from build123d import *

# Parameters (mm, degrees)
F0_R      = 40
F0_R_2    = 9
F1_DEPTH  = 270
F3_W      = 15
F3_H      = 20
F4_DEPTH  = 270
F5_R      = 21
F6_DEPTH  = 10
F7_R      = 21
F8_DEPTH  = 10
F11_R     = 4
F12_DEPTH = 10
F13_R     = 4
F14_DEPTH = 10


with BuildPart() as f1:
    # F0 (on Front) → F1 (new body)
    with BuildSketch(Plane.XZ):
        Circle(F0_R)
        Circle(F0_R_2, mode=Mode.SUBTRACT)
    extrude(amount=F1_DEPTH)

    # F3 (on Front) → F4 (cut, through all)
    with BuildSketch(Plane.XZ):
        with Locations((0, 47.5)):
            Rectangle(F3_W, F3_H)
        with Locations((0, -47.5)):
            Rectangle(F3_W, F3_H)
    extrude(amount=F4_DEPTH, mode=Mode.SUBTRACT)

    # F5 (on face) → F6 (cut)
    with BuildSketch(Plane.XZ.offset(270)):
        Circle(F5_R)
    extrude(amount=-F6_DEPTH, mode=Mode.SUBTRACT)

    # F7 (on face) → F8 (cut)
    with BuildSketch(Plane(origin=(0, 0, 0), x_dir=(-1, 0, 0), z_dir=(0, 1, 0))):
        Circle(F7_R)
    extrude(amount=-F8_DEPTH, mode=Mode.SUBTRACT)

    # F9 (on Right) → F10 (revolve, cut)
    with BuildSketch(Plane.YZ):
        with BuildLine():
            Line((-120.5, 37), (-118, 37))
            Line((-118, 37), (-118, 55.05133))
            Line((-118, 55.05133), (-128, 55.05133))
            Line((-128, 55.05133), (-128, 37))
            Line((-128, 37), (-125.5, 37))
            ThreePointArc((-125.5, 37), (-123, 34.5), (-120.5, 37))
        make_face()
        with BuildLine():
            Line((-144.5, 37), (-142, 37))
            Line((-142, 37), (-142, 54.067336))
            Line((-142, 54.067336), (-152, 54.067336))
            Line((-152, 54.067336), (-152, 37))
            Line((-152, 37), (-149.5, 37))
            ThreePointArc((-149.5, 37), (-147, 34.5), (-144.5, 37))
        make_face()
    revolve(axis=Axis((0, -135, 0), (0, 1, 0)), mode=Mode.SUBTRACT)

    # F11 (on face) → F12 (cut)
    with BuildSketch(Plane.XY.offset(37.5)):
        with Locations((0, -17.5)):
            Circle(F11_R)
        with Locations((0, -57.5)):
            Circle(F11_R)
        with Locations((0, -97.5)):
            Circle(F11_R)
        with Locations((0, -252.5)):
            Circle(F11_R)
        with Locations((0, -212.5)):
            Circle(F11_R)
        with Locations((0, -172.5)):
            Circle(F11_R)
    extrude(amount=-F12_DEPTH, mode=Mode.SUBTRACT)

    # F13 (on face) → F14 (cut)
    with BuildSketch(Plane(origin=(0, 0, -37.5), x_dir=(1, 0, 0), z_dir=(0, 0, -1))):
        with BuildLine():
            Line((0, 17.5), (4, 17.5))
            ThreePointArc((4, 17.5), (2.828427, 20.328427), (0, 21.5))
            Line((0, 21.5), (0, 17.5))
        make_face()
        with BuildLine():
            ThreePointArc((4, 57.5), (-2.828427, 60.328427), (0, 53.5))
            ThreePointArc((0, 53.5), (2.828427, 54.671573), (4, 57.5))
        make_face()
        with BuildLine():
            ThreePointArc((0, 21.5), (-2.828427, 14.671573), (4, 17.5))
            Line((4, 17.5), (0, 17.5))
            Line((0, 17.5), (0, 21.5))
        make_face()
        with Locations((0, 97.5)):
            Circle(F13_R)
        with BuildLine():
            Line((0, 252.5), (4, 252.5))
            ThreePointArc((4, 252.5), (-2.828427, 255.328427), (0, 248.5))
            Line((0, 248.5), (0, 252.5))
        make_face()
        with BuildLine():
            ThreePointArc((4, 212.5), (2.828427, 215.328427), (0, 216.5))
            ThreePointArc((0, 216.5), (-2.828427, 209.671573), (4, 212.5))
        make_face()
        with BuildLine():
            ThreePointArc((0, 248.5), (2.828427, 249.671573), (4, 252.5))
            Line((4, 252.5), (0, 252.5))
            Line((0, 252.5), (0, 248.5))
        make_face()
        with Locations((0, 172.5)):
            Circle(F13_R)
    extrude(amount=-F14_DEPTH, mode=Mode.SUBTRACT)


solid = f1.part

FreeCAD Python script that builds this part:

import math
import FreeCAD as App
import Part
import Sketcher

V = App.Vector


def add_polygon(sketch, points):
    """Adds a closed chain of lines whose ends are joined by coincident constraints."""
    first, n = sketch.GeometryCount, len(points)
    for a, b in zip(points, points[1:] + points[:1]):
        sketch.addGeometry(Part.LineSegment(App.Vector(*a, 0), App.Vector(*b, 0)), False)
    for i in range(n):
        sketch.addConstraint(Sketcher.Constraint("Coincident", first + i, 2, first + (i + 1) % n, 1))

doc = App.newDocument("Part")
body = doc.addObject("PartDesign::Body", "Body")

sketch1 = body.newObject("Sketcher::SketchObject", "Sketch")
sketch1.AttachmentSupport = (doc.getObject("XZ_Plane"), [""])
sketch1.MapMode = "FlatFace"
sketch1.addGeometry([
    Part.Circle(V(0, 0, 0), V(0, 0, 1), 40),
    Part.Circle(V(0, 0, 0), V(0, 0, 1), 9),
], False)
sketch1.addConstraint([
    Sketcher.Constraint("Coincident", 0, 3, -1, 1),
    Sketcher.Constraint("Coincident", 1, 3, -1, 1),
    Sketcher.Constraint("Diameter", 0, 80.0),
    Sketcher.Constraint("Diameter", 1, 18.0),
])
pad1 = body.newObject("PartDesign::Pad", "Pad")
pad1.Profile = sketch1
pad1.Length = 270

sketch2 = body.newObject("Sketcher::SketchObject", "Sketch001")
sketch2.AttachmentSupport = (doc.getObject("XZ_Plane"), [""])
sketch2.MapMode = "FlatFace"
add_polygon(sketch2, [(-8, 58), (-8, 38), (8, 38), (8, 58)])
add_polygon(sketch2, [(-8, -38), (-8, -58), (8, -58), (8, -38)])
sketch2.addConstraint([
    Sketcher.Constraint("Vertical", 0),
    Sketcher.Constraint("Horizontal", 1),
    Sketcher.Constraint("Vertical", 2),
    Sketcher.Constraint("Horizontal", 3),
    Sketcher.Constraint("Vertical", 4),
    Sketcher.Constraint("Horizontal", 5),
    Sketcher.Constraint("Vertical", 6),
    Sketcher.Constraint("Horizontal", 7),
    Sketcher.Constraint("Symmetric", 2, 2, 4, 2, -1, 1),
    Sketcher.Constraint("Symmetric", 0, 2, 6, 2, -1, 1),
    Sketcher.Constraint("Vertical", 3, 2, 4, 2),
    Sketcher.Constraint("DistanceX", 1, 1, 1, 2, 15.0),
    Sketcher.Constraint("DistanceY", 0, 2, 0, 1, 20.0),
    Sketcher.Constraint("DistanceY", 4, 2, 0, 2, 95.0),
])
pocket1 = body.newObject("PartDesign::Pocket", "Pocket")
pocket1.Profile = sketch2
pocket1.Type = "ThroughAll"
pocket1.Reversed = True

sketch3 = body.newObject("Sketcher::SketchObject", "Sketch002")
sketch3.AttachmentSupport = (doc.getObject("XZ_Plane"), [""])
sketch3.MapMode = "FlatFace"
sketch3.AttachmentOffset = App.Placement(V(0, 0, 270), App.Rotation())
sketch3.addGeometry(Part.Circle(V(0, 0, 0), V(0, 0, 1), 21), False)
sketch3.addConstraint([
    Sketcher.Constraint("Coincident", 0, 3, -1, 1),
    Sketcher.Constraint("Diameter", 0, 42.0),
])
pocket2 = body.newObject("PartDesign::Pocket", "Pocket001")
pocket2.Profile = sketch3
pocket2.Length = 10

sketch4 = body.newObject("Sketcher::SketchObject", "Sketch003")
sketch4.AttachmentSupport = (doc.getObject("XZ_Plane"), [""])
sketch4.MapMode = "FlatFace"
sketch4.addGeometry(Part.Circle(V(0, 0, 0), V(0, 0, 1), 21), False)
sketch4.addConstraint([
    Sketcher.Constraint("Coincident", 0, 3, -1, 1),
    Sketcher.Constraint("Diameter", 0, 42.0),
])
pocket3 = body.newObject("PartDesign::Pocket", "Pocket002")
pocket3.Profile = sketch4
pocket3.Length = 10
pocket3.Reversed = True

sketch5 = body.newObject("Sketcher::SketchObject", "Sketch004")
sketch5.AttachmentSupport = (doc.getObject("YZ_Plane"), [""])
sketch5.MapMode = "FlatFace"
sketch5.addGeometry([
    Part.LineSegment(V(-120.5, 37, 0), V(-118, 37, 0)),
    Part.LineSegment(V(-118, 37, 0), V(-118, 55.1, 0)),
    Part.LineSegment(V(-118, 55.1, 0), V(-128, 55.1, 0)),
    Part.LineSegment(V(-128, 55.1, 0), V(-128, 37, 0)),
    Part.LineSegment(V(-128, 37, 0), V(-125.5, 37, 0)),
    Part.ArcOfCircle(Part.Circle(V(-123, 37, 0), V(0, 0, 1), 2.5), math.radians(180), math.radians(360)),
    Part.LineSegment(V(-144.5, 37, 0), V(-142, 37, 0)),
    Part.LineSegment(V(-142, 37, 0), V(-142, 54.1, 0)),
    Part.LineSegment(V(-142, 54.1, 0), V(-152, 54.1, 0)),
    Part.LineSegment(V(-152, 54.1, 0), V(-152, 37, 0)),
    Part.LineSegment(V(-152, 37, 0), V(-149.5, 37, 0)),
    Part.ArcOfCircle(Part.Circle(V(-147, 37, 0), V(0, 0, 1), 2.5), math.radians(180), math.radians(360)),
], False)
sketch5.addConstraint([
    Sketcher.Constraint("Coincident", 0, 2, 1, 1),
    Sketcher.Constraint("Coincident", 1, 2, 2, 1),
    Sketcher.Constraint("Coincident", 2, 2, 3, 1),
    Sketcher.Constraint("Coincident", 3, 2, 4, 1),
    Sketcher.Constraint("Coincident", 4, 2, 5, 1),
    Sketcher.Constraint("Coincident", 5, 2, 0, 1),
    Sketcher.Constraint("Coincident", 6, 2, 7, 1),
    Sketcher.Constraint("Coincident", 7, 2, 8, 1),
    Sketcher.Constraint("Coincident", 8, 2, 9, 1),
    Sketcher.Constraint("Coincident", 9, 2, 10, 1),
    Sketcher.Constraint("Coincident", 10, 2, 11, 1),
    Sketcher.Constraint("Coincident", 11, 2, 6, 1),
    Sketcher.Constraint("Horizontal", 0),
    Sketcher.Constraint("Vertical", 1),
    Sketcher.Constraint("Horizontal", 2),
    Sketcher.Constraint("Vertical", 3),
    Sketcher.Constraint("Horizontal", 4),
    Sketcher.Constraint("Horizontal", 6),
    Sketcher.Constraint("Vertical", 7),
    Sketcher.Constraint("Horizontal", 8),
    Sketcher.Constraint("Vertical", 9),
    Sketcher.Constraint("Horizontal", 10),
    Sketcher.Constraint("Equal", 5, 11),
    Sketcher.Constraint("Horizontal", 5, 3, 11, 3),
    Sketcher.Constraint("Horizontal", 11, 3, 0, 2),
    Sketcher.Constraint("Horizontal", 0, 2, 3, 2),
    Sketcher.Constraint("Horizontal", 5, 2, 6, 2),
    Sketcher.Constraint("Horizontal", 6, 2, 9, 2),
    Sketcher.Constraint("Equal", 0, 4),
    Sketcher.Constraint("Equal", 4, 6),
    Sketcher.Constraint("Equal", 2, 8),
    Sketcher.Constraint("Radius", 5, 2.5),
    Sketcher.Constraint("DistanceX", 2, 2, 2, 1, 10.0),
    Sketcher.Constraint("DistanceX", 5, 3, -1, 1, 123.0),
    Sketcher.Constraint("DistanceY", -1, 1, 5, 3, 37.0),
    Sketcher.Constraint("DistanceX", 11, 3, -1, 1, 147.0),
    Sketcher.Constraint("DistanceY", 1, 1, 1, 2, 18.05133),
    Sketcher.Constraint("DistanceY", 7, 1, 7, 2, 17.067336),
])
groove = body.newObject("PartDesign::Groove", "Groove")
groove.Profile = sketch5
groove.ReferenceAxis = (sketch5, ["H_Axis"])
groove.Angle = 360

sketch6 = body.newObject("Sketcher::SketchObject", "Sketch005")
sketch6.AttachmentSupport = (doc.getObject("XY_Plane"), [""])
sketch6.MapMode = "FlatFace"
sketch6.AttachmentOffset = App.Placement(V(0, 0, 37.5), App.Rotation())
sketch6.addGeometry([
    Part.Circle(V(0, -17.5, 0), V(0, 0, 1), 4),
    Part.Circle(V(0, -57.5, 0), V(0, 0, 1), 4),
    Part.Circle(V(0, -97.5, 0), V(0, 0, 1), 4),
    Part.Circle(V(0, -252.5, 0), V(0, 0, 1), 4),
    Part.Circle(V(0, -212.5, 0), V(0, 0, 1), 4),
    Part.Circle(V(0, -172.5, 0), V(0, 0, 1), 4),
], False)
sketch6.addConstraint([
    Sketcher.Constraint("Equal", 0, 1),
    Sketcher.Constraint("Equal", 1, 2),
    Sketcher.Constraint("Equal", 2, 3),
    Sketcher.Constraint("Equal", 3, 4),
    Sketcher.Constraint("Equal", 4, 5),
    Sketcher.Constraint("PointOnObject", 0, 3, -2),
    Sketcher.Constraint("PointOnObject", 1, 3, -2),
    Sketcher.Constraint("PointOnObject", 2, 3, -2),
    Sketcher.Constraint("PointOnObject", 3, 3, -2),
    Sketcher.Constraint("PointOnObject", 4, 3, -2),
    Sketcher.Constraint("PointOnObject", 5, 3, -2),
    Sketcher.Constraint("Diameter", 0, 8.0),
    Sketcher.Constraint("DistanceY", 1, 3, 0, 3, 40.0),
    Sketcher.Constraint("DistanceY", 2, 3, 1, 3, 40.0),
    Sketcher.Constraint("DistanceY", 3, 3, 2, 3, 155.0),
    Sketcher.Constraint("DistanceY", 3, 3, 4, 3, 40.0),
    Sketcher.Constraint("DistanceY", 4, 3, 5, 3, 40.0),
    Sketcher.Constraint("DistanceY", 0, 3, -1, 1, 17.5),
])
pocket4 = body.newObject("PartDesign::Pocket", "Pocket003")
pocket4.Profile = sketch6
pocket4.Length = 10

sketch7 = body.newObject("Sketcher::SketchObject", "Sketch006")
sketch7.AttachmentSupport = (doc.getObject("XY_Plane"), [""])
sketch7.MapMode = "FlatFace"
sketch7.AttachmentOffset = App.Placement(V(0, 0, -37.5), App.Rotation())
sketch7.addGeometry([
    Part.ArcOfCircle(Part.Circle(V(0, -17.5, 0), V(0, 0, 1), 4), math.radians(-90), math.radians(0)),
    Part.ArcOfCircle(Part.Circle(V(0, -17.5, 0), V(0, 0, 1), 4), math.radians(0), math.radians(270)),
    Part.ArcOfCircle(Part.Circle(V(0, -57.5, 0), V(0, 0, 1), 4), math.radians(90), math.radians(360)),
    Part.ArcOfCircle(Part.Circle(V(0, -57.5, 0), V(0, 0, 1), 4), math.radians(0), math.radians(90)),
    Part.Circle(V(0, -97.5, 0), V(0, 0, 1), 4),
    Part.ArcOfCircle(Part.Circle(V(0, -252.5, 0), V(0, 0, 1), 4), math.radians(90), math.radians(360)),
    Part.ArcOfCircle(Part.Circle(V(0, -252.5, 0), V(0, 0, 1), 4), math.radians(0), math.radians(90)),
    Part.ArcOfCircle(Part.Circle(V(0, -212.5, 0), V(0, 0, 1), 4), math.radians(-90), math.radians(0)),
    Part.ArcOfCircle(Part.Circle(V(0, -212.5, 0), V(0, 0, 1), 4), math.radians(0), math.radians(270)),
    Part.Circle(V(0, -172.5, 0), V(0, 0, 1), 4),
], False)
sketch7.addConstraint([
    Sketcher.Constraint("Tangent", 0, 1, 1, 2),
    Sketcher.Constraint("Coincident", 1, 1, 0, 2),
    Sketcher.Constraint("Tangent", 2, 1, 3, 2),
    Sketcher.Constraint("Coincident", 3, 1, 2, 2),
    Sketcher.Constraint("Tangent", 5, 1, 6, 2),
    Sketcher.Constraint("Coincident", 6, 1, 5, 2),
    Sketcher.Constraint("Tangent", 7, 1, 8, 2),
    Sketcher.Constraint("Coincident", 8, 1, 7, 2),
    Sketcher.Constraint("Equal", 1, 2),
    Sketcher.Constraint("Equal", 3, 4),
    Sketcher.Constraint("Equal", 4, 5),
    Sketcher.Constraint("Equal", 6, 7),
    Sketcher.Constraint("Equal", 8, 9),
    Sketcher.Constraint("PointOnObject", 0, 3, -2),
    Sketcher.Constraint("PointOnObject", 2, 3, -2),
    Sketcher.Constraint("PointOnObject", 4, 3, -2),
    Sketcher.Constraint("PointOnObject", 5, 3, -2),
    Sketcher.Constraint("PointOnObject", 7, 3, -2),
    Sketcher.Constraint("PointOnObject", 9, 3, -2),
    Sketcher.Constraint("PointOnObject", 0, 1, -2),
    Sketcher.Constraint("PointOnObject", 2, 1, -2),
    Sketcher.Constraint("PointOnObject", 5, 1, -2),
    Sketcher.Constraint("PointOnObject", 7, 1, -2),
    Sketcher.Constraint("Horizontal", 0, 3, 1, 1),
    Sketcher.Constraint("Horizontal", 2, 3, 3, 1),
    Sketcher.Constraint("Horizontal", 5, 3, 6, 1),
    Sketcher.Constraint("Horizontal", 7, 3, 8, 1),
    Sketcher.Constraint("Diameter", 4, 8.0),
    Sketcher.Constraint("DistanceY", 2, 3, 1, 3, 40.0),
    Sketcher.Constraint("DistanceY", 4, 3, 3, 3, 40.0),
    Sketcher.Constraint("DistanceY", 5, 3, 4, 3, 155.0),
    Sketcher.Constraint("DistanceY", 5, 3, 7, 3, 40.0),
    Sketcher.Constraint("DistanceY", 7, 3, 9, 3, 40.0),
    Sketcher.Constraint("DistanceY", 0, 3, -1, 1, 17.5),
])
pocket5 = body.newObject("PartDesign::Pocket", "Pocket004")
pocket5.Profile = sketch7
pocket5.Length = 10
pocket5.Reversed = True

doc.recompute()
